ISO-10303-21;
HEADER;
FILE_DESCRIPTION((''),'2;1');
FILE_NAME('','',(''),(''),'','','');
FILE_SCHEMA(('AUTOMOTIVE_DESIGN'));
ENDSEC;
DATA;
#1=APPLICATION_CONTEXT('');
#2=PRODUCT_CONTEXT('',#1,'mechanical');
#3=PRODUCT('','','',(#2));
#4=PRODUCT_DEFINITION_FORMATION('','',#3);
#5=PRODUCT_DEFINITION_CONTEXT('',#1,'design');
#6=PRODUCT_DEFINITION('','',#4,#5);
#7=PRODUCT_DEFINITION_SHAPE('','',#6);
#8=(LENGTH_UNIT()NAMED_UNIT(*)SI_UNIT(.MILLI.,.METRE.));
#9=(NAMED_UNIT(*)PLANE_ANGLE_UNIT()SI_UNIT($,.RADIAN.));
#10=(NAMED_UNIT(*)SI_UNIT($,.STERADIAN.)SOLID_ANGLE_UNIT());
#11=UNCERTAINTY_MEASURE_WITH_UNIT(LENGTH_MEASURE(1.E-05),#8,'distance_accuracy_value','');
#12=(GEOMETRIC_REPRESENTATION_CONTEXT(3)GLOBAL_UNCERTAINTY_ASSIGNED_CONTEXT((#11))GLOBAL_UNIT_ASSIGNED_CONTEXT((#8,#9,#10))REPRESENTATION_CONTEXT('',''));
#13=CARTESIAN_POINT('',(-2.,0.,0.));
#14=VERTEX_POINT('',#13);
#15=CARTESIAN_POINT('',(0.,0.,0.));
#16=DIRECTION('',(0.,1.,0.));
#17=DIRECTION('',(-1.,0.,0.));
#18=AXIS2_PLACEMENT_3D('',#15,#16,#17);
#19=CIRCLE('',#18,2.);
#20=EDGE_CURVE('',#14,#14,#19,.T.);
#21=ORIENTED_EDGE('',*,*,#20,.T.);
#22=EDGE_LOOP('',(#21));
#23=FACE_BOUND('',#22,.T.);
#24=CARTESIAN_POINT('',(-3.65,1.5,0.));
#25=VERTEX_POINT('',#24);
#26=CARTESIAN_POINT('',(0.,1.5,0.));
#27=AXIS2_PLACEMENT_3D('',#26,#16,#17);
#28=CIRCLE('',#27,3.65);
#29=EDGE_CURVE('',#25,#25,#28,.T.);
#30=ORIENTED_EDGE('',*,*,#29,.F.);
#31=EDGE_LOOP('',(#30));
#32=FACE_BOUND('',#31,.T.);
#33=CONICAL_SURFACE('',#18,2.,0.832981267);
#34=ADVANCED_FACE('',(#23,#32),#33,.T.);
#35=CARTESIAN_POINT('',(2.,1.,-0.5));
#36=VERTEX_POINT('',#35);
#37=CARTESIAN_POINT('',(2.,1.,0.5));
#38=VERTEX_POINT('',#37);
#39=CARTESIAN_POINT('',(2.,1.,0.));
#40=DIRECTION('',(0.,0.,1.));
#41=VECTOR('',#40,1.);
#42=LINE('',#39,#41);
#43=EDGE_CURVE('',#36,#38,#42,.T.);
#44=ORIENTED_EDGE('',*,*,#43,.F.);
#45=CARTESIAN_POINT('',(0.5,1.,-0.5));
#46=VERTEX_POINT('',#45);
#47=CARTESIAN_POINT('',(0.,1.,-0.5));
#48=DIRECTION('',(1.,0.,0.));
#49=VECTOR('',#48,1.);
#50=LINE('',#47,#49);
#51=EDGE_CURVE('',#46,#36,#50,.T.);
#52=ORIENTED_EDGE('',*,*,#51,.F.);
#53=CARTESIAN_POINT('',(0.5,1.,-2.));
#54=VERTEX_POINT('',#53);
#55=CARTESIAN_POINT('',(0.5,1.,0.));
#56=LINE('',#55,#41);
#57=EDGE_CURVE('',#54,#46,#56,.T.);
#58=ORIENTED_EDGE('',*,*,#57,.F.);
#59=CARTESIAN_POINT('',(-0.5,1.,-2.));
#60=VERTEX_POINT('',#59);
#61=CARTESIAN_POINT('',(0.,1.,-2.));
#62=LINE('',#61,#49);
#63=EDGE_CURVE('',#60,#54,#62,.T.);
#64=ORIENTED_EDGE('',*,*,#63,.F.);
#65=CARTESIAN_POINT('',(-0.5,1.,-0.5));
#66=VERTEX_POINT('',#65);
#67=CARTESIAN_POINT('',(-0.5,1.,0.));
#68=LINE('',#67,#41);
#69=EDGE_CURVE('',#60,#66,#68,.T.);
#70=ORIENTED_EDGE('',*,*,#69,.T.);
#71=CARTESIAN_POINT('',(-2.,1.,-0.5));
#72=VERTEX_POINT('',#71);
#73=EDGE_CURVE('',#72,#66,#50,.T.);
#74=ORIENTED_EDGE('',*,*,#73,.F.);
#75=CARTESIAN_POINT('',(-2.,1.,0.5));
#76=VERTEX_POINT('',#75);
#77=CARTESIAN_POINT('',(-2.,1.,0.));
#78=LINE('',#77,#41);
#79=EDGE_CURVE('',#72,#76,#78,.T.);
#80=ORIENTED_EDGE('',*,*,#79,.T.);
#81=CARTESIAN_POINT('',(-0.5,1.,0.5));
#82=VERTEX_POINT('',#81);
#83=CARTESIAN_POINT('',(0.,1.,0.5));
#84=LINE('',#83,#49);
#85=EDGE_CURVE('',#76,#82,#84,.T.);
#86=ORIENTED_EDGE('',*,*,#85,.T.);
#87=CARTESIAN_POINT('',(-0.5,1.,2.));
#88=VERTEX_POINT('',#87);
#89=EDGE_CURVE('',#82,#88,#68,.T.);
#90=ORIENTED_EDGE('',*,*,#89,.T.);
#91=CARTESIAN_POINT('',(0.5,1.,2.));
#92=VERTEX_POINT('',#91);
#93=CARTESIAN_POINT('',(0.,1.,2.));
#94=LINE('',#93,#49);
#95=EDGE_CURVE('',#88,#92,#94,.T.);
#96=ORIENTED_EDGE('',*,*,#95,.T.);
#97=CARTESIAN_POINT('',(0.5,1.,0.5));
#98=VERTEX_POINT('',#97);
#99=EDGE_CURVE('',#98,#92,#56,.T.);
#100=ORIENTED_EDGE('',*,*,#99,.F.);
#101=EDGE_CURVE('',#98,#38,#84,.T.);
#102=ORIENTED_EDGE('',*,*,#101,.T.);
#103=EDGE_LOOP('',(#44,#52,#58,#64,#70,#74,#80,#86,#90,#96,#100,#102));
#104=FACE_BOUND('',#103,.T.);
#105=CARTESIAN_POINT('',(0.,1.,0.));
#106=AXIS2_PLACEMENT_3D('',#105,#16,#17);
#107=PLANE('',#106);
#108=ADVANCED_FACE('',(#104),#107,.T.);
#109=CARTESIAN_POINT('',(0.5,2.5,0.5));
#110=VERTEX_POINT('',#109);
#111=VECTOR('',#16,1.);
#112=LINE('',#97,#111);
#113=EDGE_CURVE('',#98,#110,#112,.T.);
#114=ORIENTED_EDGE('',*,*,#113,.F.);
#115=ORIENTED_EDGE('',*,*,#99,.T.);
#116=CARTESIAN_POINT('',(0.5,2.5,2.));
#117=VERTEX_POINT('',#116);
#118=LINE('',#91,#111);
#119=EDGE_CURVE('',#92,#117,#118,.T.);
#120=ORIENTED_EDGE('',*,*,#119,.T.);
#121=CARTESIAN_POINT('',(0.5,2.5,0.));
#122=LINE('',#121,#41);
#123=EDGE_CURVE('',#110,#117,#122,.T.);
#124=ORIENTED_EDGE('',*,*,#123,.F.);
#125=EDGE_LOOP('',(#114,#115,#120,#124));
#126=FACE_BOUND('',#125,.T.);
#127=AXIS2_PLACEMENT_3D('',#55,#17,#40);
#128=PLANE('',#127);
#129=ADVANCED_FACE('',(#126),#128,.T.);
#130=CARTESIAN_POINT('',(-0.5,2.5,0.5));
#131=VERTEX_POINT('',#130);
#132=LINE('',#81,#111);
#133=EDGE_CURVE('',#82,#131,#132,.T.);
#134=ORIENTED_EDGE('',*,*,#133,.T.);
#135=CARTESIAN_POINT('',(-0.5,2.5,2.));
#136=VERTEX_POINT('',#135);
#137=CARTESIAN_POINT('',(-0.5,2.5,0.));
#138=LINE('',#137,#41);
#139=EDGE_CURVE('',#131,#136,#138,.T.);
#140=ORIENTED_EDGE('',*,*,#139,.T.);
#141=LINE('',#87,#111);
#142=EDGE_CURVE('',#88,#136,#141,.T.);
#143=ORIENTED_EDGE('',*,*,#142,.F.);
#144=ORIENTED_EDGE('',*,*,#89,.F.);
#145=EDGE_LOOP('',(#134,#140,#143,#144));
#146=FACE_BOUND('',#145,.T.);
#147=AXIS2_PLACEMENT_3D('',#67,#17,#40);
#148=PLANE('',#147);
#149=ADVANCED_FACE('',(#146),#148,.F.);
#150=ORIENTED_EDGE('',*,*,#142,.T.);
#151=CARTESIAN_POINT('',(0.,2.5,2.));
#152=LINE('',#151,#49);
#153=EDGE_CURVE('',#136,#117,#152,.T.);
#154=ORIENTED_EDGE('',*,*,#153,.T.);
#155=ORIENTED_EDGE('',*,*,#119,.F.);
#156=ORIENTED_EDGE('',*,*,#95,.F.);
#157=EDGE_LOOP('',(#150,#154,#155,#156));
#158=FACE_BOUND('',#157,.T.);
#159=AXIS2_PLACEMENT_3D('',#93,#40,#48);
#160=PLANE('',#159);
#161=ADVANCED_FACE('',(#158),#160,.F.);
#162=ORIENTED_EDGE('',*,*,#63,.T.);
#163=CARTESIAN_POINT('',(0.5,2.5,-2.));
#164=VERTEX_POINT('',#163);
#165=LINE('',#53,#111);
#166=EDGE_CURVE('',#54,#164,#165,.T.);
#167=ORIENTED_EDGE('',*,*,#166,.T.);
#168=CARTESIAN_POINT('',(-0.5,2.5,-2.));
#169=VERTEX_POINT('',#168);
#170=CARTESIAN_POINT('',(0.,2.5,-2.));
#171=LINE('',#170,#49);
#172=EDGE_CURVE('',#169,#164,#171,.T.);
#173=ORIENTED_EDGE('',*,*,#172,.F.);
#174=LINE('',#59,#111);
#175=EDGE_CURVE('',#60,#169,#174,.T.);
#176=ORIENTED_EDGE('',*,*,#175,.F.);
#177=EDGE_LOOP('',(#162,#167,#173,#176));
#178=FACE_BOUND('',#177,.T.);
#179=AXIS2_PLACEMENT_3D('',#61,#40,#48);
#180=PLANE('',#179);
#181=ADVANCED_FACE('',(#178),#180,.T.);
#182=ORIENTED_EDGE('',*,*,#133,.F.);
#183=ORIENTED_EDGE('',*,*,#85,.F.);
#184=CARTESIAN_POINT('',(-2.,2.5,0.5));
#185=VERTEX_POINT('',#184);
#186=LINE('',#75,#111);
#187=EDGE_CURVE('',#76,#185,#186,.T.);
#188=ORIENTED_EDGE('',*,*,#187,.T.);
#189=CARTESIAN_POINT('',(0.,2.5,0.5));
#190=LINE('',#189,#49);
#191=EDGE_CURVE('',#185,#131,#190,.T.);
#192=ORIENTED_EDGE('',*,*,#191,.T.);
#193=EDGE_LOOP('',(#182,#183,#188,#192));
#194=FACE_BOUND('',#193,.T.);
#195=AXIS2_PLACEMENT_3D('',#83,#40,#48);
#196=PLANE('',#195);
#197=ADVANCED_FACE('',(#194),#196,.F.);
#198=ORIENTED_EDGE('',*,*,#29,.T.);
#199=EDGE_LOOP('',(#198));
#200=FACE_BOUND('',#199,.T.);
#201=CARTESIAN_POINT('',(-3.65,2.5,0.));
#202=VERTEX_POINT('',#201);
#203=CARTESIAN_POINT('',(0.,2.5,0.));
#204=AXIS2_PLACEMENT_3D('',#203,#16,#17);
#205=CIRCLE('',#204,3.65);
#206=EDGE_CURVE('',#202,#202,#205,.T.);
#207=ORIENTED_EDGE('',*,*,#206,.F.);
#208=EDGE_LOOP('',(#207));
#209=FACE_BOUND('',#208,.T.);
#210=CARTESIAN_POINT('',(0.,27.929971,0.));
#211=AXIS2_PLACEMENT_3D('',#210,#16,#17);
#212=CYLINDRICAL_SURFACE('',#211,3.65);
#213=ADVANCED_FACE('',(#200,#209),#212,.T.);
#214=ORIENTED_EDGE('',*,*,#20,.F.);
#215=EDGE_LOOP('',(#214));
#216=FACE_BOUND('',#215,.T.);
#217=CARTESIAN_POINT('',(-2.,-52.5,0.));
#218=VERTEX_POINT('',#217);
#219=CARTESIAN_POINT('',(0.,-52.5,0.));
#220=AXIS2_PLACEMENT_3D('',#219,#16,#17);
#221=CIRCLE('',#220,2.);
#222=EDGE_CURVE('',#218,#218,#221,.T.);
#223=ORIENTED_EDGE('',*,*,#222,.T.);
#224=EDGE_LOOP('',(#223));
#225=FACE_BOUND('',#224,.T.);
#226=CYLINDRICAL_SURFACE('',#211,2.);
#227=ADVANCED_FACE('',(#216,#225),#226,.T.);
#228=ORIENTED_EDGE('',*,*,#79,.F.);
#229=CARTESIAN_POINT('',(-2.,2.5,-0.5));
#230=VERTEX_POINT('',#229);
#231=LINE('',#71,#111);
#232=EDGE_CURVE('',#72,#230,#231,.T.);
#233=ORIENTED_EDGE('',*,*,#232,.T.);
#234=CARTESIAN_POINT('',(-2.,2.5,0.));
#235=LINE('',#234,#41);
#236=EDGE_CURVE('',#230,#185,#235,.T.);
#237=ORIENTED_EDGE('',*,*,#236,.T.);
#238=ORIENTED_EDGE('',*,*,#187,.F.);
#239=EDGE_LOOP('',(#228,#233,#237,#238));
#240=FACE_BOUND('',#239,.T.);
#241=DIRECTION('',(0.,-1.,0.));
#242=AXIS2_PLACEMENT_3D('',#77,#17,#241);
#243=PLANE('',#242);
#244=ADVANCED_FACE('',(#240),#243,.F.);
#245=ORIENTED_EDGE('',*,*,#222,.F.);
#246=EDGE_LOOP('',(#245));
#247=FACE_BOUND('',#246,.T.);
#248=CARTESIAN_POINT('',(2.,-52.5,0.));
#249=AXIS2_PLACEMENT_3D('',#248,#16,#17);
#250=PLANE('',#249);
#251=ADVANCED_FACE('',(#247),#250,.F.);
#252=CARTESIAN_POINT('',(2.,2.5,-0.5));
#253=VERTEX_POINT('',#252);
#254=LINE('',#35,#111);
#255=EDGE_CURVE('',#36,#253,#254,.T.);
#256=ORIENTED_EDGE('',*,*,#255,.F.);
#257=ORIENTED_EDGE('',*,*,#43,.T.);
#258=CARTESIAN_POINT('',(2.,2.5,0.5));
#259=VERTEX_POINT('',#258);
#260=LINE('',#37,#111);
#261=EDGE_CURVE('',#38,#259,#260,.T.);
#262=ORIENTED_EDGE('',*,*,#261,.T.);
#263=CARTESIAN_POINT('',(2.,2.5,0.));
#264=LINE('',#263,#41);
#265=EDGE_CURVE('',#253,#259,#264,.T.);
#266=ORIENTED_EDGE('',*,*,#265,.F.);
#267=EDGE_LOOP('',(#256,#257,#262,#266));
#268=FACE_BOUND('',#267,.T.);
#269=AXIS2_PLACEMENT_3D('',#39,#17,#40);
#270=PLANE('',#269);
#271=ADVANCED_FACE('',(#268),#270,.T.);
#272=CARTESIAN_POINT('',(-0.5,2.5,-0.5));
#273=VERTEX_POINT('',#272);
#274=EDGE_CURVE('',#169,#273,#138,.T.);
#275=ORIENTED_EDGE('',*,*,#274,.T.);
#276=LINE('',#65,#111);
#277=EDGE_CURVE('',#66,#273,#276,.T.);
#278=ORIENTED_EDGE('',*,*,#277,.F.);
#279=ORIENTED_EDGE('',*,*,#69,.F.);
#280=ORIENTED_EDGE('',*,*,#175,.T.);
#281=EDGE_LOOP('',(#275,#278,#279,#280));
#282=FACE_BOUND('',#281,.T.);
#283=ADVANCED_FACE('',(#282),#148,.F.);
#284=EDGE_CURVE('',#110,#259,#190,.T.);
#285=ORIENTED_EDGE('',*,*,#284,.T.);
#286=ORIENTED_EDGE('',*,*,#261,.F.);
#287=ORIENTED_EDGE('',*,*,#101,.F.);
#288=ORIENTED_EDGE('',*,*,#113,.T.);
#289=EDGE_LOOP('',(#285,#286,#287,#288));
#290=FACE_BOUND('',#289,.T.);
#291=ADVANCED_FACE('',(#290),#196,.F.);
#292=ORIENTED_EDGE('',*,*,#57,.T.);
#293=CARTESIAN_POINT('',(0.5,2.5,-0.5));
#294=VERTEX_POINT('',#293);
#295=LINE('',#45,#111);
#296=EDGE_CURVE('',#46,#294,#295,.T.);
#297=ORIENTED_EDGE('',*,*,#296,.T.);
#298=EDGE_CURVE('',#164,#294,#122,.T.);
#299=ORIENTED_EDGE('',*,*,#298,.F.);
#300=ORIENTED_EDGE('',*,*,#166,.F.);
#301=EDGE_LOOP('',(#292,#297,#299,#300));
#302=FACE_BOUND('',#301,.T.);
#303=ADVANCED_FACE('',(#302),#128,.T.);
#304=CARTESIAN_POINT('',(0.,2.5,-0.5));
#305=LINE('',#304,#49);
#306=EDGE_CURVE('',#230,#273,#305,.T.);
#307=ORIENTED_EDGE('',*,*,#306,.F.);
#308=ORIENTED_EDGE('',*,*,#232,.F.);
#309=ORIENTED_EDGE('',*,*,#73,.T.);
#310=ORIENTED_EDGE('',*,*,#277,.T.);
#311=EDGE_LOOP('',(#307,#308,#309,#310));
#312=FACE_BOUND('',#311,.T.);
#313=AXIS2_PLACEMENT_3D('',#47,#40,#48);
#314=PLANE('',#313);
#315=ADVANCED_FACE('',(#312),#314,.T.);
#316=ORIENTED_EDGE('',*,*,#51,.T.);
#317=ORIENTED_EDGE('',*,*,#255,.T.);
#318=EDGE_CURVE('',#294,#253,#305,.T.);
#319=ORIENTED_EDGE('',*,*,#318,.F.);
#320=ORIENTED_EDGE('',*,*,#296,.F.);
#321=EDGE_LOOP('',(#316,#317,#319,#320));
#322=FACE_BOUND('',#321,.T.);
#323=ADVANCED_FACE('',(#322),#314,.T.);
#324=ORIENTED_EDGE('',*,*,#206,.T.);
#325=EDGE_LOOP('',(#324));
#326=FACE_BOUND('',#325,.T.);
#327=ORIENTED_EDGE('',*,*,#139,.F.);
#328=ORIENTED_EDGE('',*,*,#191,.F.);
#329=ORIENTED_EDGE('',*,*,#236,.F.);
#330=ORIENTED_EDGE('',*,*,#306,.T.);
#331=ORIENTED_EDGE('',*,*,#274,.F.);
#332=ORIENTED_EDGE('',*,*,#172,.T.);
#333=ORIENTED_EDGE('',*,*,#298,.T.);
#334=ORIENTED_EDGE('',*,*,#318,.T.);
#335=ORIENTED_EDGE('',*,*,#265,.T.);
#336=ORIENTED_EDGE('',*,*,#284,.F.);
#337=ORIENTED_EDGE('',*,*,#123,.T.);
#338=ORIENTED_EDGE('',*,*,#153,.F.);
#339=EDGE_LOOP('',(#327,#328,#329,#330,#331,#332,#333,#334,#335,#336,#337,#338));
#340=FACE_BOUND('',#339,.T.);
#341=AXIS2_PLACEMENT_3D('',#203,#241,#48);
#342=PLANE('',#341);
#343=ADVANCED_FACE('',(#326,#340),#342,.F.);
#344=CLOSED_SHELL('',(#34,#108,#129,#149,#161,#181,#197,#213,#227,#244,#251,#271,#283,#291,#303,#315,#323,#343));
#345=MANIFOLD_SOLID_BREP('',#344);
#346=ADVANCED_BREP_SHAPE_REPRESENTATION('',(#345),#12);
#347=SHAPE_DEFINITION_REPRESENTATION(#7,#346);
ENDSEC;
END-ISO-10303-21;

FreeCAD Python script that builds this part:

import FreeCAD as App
import Part
import Sketcher

doc = App.newDocument("Part")
params = doc.addObject("Spreadsheet::Sheet", "Params")
for row, (alias, value) in enumerate([
    ("sketch1_width", "2 mm"),
    ("sketch1_height", "55 mm"),
    ("sketch1_height2", "1 mm"),
    ("sketch1_height3", "52.5 mm"),
    ("sketch1_width2", "3.65 mm"),
    ("revolution_angle", "360 deg"),
    ("sketch2_width", "1 mm"),
    ("sketch2_width2", "1.5 mm"),
    ("pocket1_length", "1.5 mm"),
], start=1):
    params.set(f"A{row}", alias)
    params.set(f"B{row}", "=" + value)
    params.setAlias(f"B{row}", alias)

body = doc.addObject("PartDesign::Body", "Body")

sketch1 = doc.addObject("Sketcher::SketchObject", "Sketch")
body.addObject(sketch1)
sketch1.AttachmentSupport = (doc.XY_Plane, [""])
sketch1.MapMode = "FlatFace"
sketch1.addGeometry([
    Part.LineSegment(App.Vector(3.6, 2.5, 0), App.Vector(0, 2.5, 0)),
    Part.LineSegment(App.Vector(0, 2.5, 0), App.Vector(0, -52.5, 0)),
    Part.LineSegment(App.Vector(0, -52.5, 0), App.Vector(2, -52.5, 0)),
    Part.LineSegment(App.Vector(2, -52.5, 0), App.Vector(2, 0, 0)),
    Part.LineSegment(App.Vector(2, 0, 0), App.Vector(3.6, 1.5, 0)),
    Part.LineSegment(App.Vector(3.6, 1.5, 0), App.Vector(3.6, 2.5, 0)),
], False)
sketch1.addConstraint([
    Sketcher.Constraint("Coincident", 0, 2, 1, 1),
    Sketcher.Constraint("Coincident", 1, 2, 2, 1),
    Sketcher.Constraint("Coincident", 2, 2, 3, 1),
    Sketcher.Constraint("Coincident", 3, 2, 4, 1),
    Sketcher.Constraint("Coincident", 4, 2, 5, 1),
    Sketcher.Constraint("Coincident", 5, 2, 0, 1),
    Sketcher.Constraint("Horizontal", 0),
    Sketcher.Constraint("Vertical", 1),
    Sketcher.Constraint("Horizontal", 2),
    Sketcher.Constraint("Vertical", 3),
    Sketcher.Constraint("Vertical", 5),
    Sketcher.Constraint("PointOnObject", 0, 2, -2),
    Sketcher.Constraint("PointOnObject", 3, 2, -1),
    Sketcher.Constraint("DistanceX", 2, 1, 2, 2, 2.0),
    Sketcher.Constraint("DistanceY", 1, 2, 1, 1, 55.0),
    Sketcher.Constraint("DistanceY", 5, 1, 5, 2, 1.0),
    Sketcher.Constraint("DistanceY", 3, 1, 3, 2, 52.5),
    Sketcher.Constraint("DistanceX", 0, 2, 0, 1, 3.65),
])
sketch1.setExpression("Constraints[13]", "Params.sketch1_width")
sketch1.setExpression("Constraints[14]", "Params.sketch1_height")
sketch1.setExpression("Constraints[15]", "Params.sketch1_height2")
sketch1.setExpression("Constraints[16]", "Params.sketch1_height3")
sketch1.setExpression("Constraints[17]", "Params.sketch1_width2")
revolution = doc.addObject("PartDesign::Revolution", "Revolution")
body.addObject(revolution)
revolution.Profile = sketch1
revolution.ReferenceAxis = (sketch1, ["V_Axis"])
revolution.setExpression("Angle", "Params.revolution_angle")

sketch2 = doc.addObject("Sketcher::SketchObject", "Sketch001")
body.addObject(sketch2)
sketch2.AttachmentSupport = (doc.XZ_Plane, [""])
sketch2.MapMode = "FlatFace"
sketch2.AttachmentOffset = App.Placement(App.Vector(0, 0, -2.5), App.Rotation())
sketch2.addGeometry([
    Part.LineSegment(App.Vector(2, 0.5, 0), App.Vector(2, -0.5, 0)),
    Part.LineSegment(App.Vector(2, -0.5, 0), App.Vector(0.5, -0.5, 0)),
    Part.LineSegment(App.Vector(0.5, -0.5, 0), App.Vector(0.5, -2, 0)),
    Part.LineSegment(App.Vector(0.5, -2, 0), App.Vector(-0.5, -2, 0)),
    Part.LineSegment(App.Vector(-0.5, -2, 0), App.Vector(-0.5, -0.5, 0)),
    Part.LineSegment(App.Vector(-0.5, -0.5, 0), App.Vector(-2, -0.5, 0)),
    Part.LineSegment(App.Vector(-2, -0.5, 0), App.Vector(-2, 0.5, 0)),
    Part.LineSegment(App.Vector(-2, 0.5, 0), App.Vector(-0.5, 0.5, 0)),
    Part.LineSegment(App.Vector(-0.5, 0.5, 0), App.Vector(-0.5, 2, 0)),
    Part.LineSegment(App.Vector(-0.5, 2, 0), App.Vector(0.5, 2, 0)),
    Part.LineSegment(App.Vector(0.5, 2, 0), App.Vector(0.5, 0.5, 0)),
    Part.LineSegment(App.Vector(0.5, 0.5, 0), App.Vector(2, 0.5, 0)),
], False)
sketch2.addConstraint([
    Sketcher.Constraint("Coincident", 0, 2, 1, 1),
    Sketcher.Constraint("Coincident", 1, 2, 2, 1),
    Sketcher.Constraint("Coincident", 2, 2, 3, 1),
    Sketcher.Constraint("Coincident", 3, 2, 4, 1),
    Sketcher.Constraint("Coincident", 4, 2, 5, 1),
    Sketcher.Constraint("Coincident", 5, 2, 6, 1),
    Sketcher.Constraint("Coincident", 6, 2, 7, 1),
    Sketcher.Constraint("Coincident", 7, 2, 8, 1),
    Sketcher.Constraint("Coincident", 8, 2, 9, 1),
    Sketcher.Constraint("Coincident", 9, 2, 10, 1),
    Sketcher.Constraint("Coincident", 10, 2, 11, 1),
    Sketcher.Constraint("Coincident", 11, 2, 0, 1),
    Sketcher.Constraint("Vertical", 0),
    Sketcher.Constraint("Horizontal", 1),
    Sketcher.Constraint("Vertical", 2),
    Sketcher.Constraint("Horizontal", 3),
    Sketcher.Constraint("Vertical", 4),
    Sketcher.Constraint("Horizontal", 5),
    Sketcher.Constraint("Vertical", 6),
    Sketcher.Constraint("Horizontal", 7),
    Sketcher.Constraint("Vertical", 8),
    Sketcher.Constraint("Horizontal", 9),
    Sketcher.Constraint("Vertical", 10),
    Sketcher.Constraint("Horizontal", 11),
    Sketcher.Constraint("Symmetric", 0, 2, 6, 2, -1, 1),
    Sketcher.Constraint("Symmetric", 2, 2, 8, 2, -1, 1),
    Sketcher.Constraint("Symmetric", 4, 2, 10, 2, -1, 1),
    Sketcher.Constraint("Symmetric", 1, 2, 4, 2, -2),
    Sketcher.Constraint("Equal", 9, 0),
    Sketcher.Constraint("Equal", 11, 2),
    Sketcher.Constraint("DistanceX", 3, 2, 3, 1, 1.0),
    Sketcher.Constraint("DistanceX", 1, 2, 1, 1, 1.5),
])
sketch2.setExpression("Constraints[30]", "Params.sketch2_width")
sketch2.setExpression("Constraints[31]", "Params.sketch2_width2")
pocket1 = doc.addObject("PartDesign::Pocket", "Pocket")
body.addObject(pocket1)
pocket1.Profile = sketch2
pocket1.setExpression("Length", "Params.pocket1_length")
pocket1.Reversed = True

doc.recompute()
